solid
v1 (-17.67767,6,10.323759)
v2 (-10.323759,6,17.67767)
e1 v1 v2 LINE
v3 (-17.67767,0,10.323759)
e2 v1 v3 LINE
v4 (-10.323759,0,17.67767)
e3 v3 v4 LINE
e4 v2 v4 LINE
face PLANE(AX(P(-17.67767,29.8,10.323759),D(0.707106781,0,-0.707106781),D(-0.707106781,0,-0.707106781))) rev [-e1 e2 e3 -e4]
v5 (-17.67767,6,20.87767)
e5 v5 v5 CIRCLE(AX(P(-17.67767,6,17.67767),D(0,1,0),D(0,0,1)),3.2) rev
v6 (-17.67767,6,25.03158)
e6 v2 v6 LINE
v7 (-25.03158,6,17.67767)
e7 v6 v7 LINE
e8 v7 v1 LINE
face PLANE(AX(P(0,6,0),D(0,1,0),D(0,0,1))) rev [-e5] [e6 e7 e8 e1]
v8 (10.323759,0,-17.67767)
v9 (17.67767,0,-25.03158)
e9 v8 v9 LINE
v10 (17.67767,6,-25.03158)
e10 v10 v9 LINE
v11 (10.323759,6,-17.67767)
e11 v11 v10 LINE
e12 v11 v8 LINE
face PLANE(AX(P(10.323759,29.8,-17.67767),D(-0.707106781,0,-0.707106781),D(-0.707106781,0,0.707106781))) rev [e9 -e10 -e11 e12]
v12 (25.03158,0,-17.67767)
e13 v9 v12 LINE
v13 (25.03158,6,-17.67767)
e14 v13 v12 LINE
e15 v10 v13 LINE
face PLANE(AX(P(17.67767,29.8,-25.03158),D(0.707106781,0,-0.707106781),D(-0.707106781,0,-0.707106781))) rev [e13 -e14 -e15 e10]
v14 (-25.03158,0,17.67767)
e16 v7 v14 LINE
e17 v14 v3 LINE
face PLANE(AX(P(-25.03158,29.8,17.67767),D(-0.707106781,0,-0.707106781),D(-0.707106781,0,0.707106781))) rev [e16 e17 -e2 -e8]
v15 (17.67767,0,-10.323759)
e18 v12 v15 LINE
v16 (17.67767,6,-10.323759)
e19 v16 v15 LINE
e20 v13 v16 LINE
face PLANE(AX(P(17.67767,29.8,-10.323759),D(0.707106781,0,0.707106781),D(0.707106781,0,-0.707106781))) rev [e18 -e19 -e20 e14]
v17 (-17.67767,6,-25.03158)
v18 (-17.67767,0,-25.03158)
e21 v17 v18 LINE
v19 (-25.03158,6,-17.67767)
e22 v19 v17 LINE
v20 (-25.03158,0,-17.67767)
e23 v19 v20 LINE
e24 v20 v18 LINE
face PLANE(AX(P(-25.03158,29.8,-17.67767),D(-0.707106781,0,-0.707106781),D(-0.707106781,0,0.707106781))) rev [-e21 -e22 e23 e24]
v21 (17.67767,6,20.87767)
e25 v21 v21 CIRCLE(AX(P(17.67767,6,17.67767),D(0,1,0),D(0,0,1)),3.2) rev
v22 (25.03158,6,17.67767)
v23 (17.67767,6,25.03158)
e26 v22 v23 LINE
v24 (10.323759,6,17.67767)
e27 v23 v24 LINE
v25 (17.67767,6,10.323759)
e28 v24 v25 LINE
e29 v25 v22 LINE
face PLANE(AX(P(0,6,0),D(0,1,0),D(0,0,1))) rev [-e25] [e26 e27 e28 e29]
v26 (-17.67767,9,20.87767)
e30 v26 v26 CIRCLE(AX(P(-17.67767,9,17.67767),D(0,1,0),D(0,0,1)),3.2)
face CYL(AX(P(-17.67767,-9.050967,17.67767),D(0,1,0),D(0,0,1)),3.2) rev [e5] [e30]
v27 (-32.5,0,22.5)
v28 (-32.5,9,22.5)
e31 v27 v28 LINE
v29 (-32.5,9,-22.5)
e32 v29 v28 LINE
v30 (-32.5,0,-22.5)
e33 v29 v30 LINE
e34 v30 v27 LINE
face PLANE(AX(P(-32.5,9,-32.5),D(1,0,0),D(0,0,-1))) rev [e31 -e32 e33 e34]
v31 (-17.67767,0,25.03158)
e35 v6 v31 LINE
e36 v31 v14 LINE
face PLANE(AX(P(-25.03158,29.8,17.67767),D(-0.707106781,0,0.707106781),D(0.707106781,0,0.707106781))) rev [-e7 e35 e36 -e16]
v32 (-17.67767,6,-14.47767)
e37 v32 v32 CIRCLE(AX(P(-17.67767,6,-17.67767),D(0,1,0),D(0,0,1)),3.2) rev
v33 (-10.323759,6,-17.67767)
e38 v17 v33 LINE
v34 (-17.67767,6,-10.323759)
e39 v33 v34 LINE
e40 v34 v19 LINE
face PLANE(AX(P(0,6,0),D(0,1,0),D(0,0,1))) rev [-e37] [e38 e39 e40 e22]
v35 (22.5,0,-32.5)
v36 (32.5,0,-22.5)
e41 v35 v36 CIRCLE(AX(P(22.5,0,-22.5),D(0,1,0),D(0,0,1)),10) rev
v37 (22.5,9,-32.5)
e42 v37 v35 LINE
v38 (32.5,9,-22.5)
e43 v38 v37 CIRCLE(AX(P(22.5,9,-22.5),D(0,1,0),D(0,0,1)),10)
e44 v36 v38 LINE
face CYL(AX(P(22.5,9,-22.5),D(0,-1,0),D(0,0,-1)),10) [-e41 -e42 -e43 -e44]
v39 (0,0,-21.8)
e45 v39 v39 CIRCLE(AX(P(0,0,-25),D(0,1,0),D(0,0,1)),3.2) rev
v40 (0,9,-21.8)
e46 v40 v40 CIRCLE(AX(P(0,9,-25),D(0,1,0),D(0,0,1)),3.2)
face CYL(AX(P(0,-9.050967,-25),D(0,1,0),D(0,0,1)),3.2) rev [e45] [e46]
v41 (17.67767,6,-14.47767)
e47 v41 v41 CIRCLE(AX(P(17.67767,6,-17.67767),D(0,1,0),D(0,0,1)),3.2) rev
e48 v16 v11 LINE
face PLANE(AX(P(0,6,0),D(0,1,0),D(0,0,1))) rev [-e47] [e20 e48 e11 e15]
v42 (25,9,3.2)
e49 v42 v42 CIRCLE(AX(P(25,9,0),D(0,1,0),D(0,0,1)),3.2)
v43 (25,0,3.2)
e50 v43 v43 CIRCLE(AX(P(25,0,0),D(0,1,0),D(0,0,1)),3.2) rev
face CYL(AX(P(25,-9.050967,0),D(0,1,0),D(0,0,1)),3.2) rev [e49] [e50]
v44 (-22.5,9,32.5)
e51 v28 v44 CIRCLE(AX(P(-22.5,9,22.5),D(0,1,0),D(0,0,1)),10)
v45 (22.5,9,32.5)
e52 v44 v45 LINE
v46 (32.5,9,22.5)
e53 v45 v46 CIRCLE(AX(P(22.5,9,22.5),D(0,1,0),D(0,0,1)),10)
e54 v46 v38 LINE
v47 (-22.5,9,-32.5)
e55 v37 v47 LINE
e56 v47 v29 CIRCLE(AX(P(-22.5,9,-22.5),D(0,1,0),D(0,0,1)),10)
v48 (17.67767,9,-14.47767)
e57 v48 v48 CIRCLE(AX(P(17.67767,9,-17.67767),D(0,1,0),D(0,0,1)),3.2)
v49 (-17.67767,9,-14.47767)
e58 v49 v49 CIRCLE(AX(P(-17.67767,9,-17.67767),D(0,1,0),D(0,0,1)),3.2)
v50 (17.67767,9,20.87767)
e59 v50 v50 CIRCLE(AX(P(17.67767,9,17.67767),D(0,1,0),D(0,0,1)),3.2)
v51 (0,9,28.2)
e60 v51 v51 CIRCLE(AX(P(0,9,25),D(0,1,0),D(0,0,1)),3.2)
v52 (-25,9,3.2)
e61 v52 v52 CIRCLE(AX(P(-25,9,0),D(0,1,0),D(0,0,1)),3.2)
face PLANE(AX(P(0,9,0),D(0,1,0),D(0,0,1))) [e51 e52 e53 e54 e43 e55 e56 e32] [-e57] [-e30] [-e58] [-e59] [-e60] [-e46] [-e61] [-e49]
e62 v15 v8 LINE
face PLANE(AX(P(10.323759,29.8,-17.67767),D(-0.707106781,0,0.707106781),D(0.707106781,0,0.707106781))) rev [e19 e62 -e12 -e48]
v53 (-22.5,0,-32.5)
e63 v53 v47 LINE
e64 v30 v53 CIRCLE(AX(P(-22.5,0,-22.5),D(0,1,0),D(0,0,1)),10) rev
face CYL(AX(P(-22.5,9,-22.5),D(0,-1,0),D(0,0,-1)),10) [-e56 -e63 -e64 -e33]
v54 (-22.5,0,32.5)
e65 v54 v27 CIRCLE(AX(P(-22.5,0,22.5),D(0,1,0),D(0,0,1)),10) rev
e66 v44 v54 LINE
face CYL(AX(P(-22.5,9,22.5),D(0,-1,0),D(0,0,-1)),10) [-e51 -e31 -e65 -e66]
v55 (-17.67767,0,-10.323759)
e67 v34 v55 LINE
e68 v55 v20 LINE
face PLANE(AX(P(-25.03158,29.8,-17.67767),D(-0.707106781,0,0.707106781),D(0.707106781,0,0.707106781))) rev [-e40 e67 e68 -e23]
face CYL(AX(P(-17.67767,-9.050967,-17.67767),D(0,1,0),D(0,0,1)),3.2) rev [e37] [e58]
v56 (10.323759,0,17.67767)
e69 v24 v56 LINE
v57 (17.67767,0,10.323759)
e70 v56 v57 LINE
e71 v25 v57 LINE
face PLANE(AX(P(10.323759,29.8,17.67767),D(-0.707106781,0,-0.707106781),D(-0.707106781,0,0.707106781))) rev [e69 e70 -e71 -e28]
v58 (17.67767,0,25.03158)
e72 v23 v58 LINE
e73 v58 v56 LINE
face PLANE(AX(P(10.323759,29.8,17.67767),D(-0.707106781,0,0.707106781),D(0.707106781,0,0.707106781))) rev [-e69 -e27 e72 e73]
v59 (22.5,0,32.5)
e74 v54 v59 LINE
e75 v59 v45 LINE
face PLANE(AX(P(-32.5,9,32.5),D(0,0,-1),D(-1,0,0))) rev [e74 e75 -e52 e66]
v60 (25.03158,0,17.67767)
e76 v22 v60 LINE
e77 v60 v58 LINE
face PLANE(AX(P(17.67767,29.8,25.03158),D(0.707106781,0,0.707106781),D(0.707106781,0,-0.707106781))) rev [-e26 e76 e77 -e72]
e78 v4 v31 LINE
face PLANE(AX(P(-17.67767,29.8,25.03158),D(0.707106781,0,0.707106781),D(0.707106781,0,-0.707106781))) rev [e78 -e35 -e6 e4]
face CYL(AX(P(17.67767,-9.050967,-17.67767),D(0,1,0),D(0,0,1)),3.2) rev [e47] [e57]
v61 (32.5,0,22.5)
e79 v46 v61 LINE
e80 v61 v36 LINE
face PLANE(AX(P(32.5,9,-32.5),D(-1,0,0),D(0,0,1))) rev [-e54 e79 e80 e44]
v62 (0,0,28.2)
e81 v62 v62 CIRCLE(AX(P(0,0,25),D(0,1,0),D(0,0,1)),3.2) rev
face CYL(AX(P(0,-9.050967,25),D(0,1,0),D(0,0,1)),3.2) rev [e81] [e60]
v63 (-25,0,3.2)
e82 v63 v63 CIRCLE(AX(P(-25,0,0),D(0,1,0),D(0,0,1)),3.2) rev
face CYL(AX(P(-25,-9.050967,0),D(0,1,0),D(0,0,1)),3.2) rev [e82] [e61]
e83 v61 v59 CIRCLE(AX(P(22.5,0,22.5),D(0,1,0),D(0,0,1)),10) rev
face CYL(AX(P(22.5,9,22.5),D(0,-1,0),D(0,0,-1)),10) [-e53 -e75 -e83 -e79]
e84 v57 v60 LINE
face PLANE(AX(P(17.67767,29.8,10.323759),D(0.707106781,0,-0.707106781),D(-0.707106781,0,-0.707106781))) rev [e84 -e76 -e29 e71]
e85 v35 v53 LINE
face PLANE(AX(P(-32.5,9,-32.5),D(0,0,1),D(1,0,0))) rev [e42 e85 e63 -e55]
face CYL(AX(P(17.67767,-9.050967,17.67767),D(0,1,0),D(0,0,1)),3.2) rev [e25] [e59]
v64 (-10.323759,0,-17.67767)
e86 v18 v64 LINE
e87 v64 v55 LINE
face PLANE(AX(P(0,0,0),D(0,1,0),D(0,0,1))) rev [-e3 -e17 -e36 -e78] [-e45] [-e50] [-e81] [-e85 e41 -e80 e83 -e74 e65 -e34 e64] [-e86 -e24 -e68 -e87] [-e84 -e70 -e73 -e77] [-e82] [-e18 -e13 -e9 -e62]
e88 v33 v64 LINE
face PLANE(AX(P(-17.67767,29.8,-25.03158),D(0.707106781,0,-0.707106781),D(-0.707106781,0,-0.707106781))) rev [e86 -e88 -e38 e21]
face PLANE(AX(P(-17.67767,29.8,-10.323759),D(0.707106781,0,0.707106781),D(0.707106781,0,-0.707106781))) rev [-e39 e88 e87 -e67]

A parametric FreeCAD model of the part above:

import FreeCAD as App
import Part
import Sketcher
Q = App.Units.Quantity


def edges_at(feature, points):
    """Names of the edges that pass closest to the given points."""
    edges = feature.Shape.Edges
    near = lambda p: min(range(len(edges)), key=lambda i: edges[i].distToShape(Part.Vertex(*p))[0])
    return sorted({f"Edge{near(p) + 1}" for p in points})

doc = App.newDocument("Part")
body = doc.addObject("PartDesign::Body", "Body")

# Sketch on XZ plane
sketch1 = body.newObject("Sketcher::SketchObject", "Sketch")
sketch1.AttachmentSupport = (doc.getObject("XZ_Plane"), [""])
sketch1.MapMode = "FlatFace"
sketch1.addGeometry(Part.LineSegment(App.Vector(-32.5, -32.5, 0), App.Vector(-32.5, 32.5, 0)), False)
sketch1.addGeometry(Part.LineSegment(App.Vector(-32.5, 32.5, 0), App.Vector(32.5, 32.5, 0)), False)
sketch1.addGeometry(Part.LineSegment(App.Vector(32.5, 32.5, 0), App.Vector(32.5, -32.5, 0)), False)
sketch1.addGeometry(Part.LineSegment(App.Vector(32.5, -32.5, 0), App.Vector(-32.5, -32.5, 0)), False)
sketch1.addConstraint(Sketcher.Constraint("Coincident", 0, 2, 1, 1))
sketch1.addConstraint(Sketcher.Constraint("Coincident", 1, 2, 2, 1))
sketch1.addConstraint(Sketcher.Constraint("Coincident", 2, 2, 3, 1))
sketch1.addConstraint(Sketcher.Constraint("Coincident", 3, 2, 0, 1))
sketch1.addConstraint(Sketcher.Constraint("Vertical", 0))
sketch1.addConstraint(Sketcher.Constraint("Horizontal", 1))
sketch1.addConstraint(Sketcher.Constraint("Vertical", 2))
sketch1.addConstraint(Sketcher.Constraint("Horizontal", 3))
sketch1.addConstraint(Sketcher.Constraint("Symmetric", 0, 2, 2, 2, -1, 1))
sketch1.addConstraint(Sketcher.Constraint("Equal", 3, 0))
sketch1.addConstraint(Sketcher.Constraint("DistanceX", 1, 1, 1, 2, Q("65 mm")))
pad1 = body.newObject("PartDesign::Pad", "Pad")
pad1.Profile = sketch1
pad1.Length = 9
pad1.Reversed = True

# Sketch on XZ plane
sketch2 = body.newObject("Sketcher::SketchObject", "Sketch001")
sketch2.AttachmentSupport = (doc.getObject("XZ_Plane"), [""])
sketch2.MapMode = "FlatFace"
sketch2.AttachmentOffset = App.Placement(App.Vector(0, 0, -9), App.Rotation())
sketch2.addGeometry(Part.Circle(App.Vector(-17.67767, -17.67767, 0), App.Vector(0, 0, 1), 3.2), False)
sketch2.addGeometry(Part.Circle(App.Vector(17.67767, 17.67767, 0), App.Vector(0, 0, 1), 3.2), False)
sketch2.addGeometry(Part.Circle(App.Vector(-17.67767, 17.67767, 0), App.Vector(0, 0, 1), 3.2), False)
sketch2.addGeometry(Part.Circle(App.Vector(17.67767, -17.67767, 0), App.Vector(0, 0, 1), 3.2), False)
sketch2.addGeometry(Part.Circle(App.Vector(0, -25, 0), App.Vector(0, 0, 1), 3.2), False)
sketch2.addGeometry(Part.Circle(App.Vector(25, 0, 0), App.Vector(0, 0, 1), 3.2), False)
sketch2.addGeometry(Part.Circle(App.Vector(0, 25, 0), App.Vector(0, 0, 1), 3.2), False)
sketch2.addGeometry(Part.Circle(App.Vector(-25, 0, 0), App.Vector(0, 0, 1), 3.2), False)
sketch2.addConstraint(Sketcher.Constraint("Equal", 0, 1))
sketch2.addConstraint(Sketcher.Constraint("Equal", 1, 2))
sketch2.addConstraint(Sketcher.Constraint("Equal", 2, 3))
sketch2.addConstraint(Sketcher.Constraint("Equal", 3, 4))
sketch2.addConstraint(Sketcher.Constraint("Equal", 4, 5))
sketch2.addConstraint(Sketcher.Constraint("Equal", 5, 6))
sketch2.addConstraint(Sketcher.Constraint("Equal", 6, 7))
sketch2.addConstraint(Sketcher.Constraint("Symmetric", 0, 3, 1, 3, -1, 1))
sketch2.addConstraint(Sketcher.Constraint("Symmetric", 2, 3, 3, 3, -1, 1))
sketch2.addConstraint(Sketcher.Constraint("Symmetric", 4, 3, 6, 3, -1, 1))
sketch2.addConstraint(Sketcher.Constraint("Symmetric", 5, 3, 7, 3, -1, 1))
sketch2.addConstraint(Sketcher.Constraint("Symmetric", 1, 3, 2, 3, -2))
sketch2.addConstraint(Sketcher.Constraint("PointOnObject", 4, 3, -2))
sketch2.addConstraint(Sketcher.Constraint("PointOnObject", 5, 3, -1))
sketch2.addConstraint(Sketcher.Constraint("Diameter", 0, Q("6.4 mm")))
sketch2.addConstraint(Sketcher.Constraint("DistanceY", 4, 3, -1, 1, Q("25 mm")))
sketch2.addConstraint(Sketcher.Constraint("DistanceX", -1, 1, 5, 3, Q("25 mm")))
sketch2.addConstraint(Sketcher.Constraint("DistanceX", 0, 3, -1, 1, Q("17.67767 mm")))
sketch2.addConstraint(Sketcher.Constraint("DistanceY", 0, 3, -1, 1, Q("17.67767 mm")))
pocket1 = body.newObject("PartDesign::Pocket", "Pocket")
pocket1.Profile = sketch2
pocket1.Length = 9
pocket1.Reversed = True

# Sketch on XZ plane
sketch3 = body.newObject("Sketcher::SketchObject", "Sketch002")
sketch3.AttachmentSupport = (doc.getObject("XZ_Plane"), [""])
sketch3.MapMode = "FlatFace"
sketch3.addGeometry(Part.LineSegment(App.Vector(-25.03158, 17.67767, 0), App.Vector(-17.67767, 10.323759, 0)), False)
sketch3.addGeometry(Part.LineSegment(App.Vector(-17.67767, 10.323759, 0), App.Vector(-10.323759, 17.67767, 0)), False)
sketch3.addGeometry(Part.LineSegment(App.Vector(-10.323759, 17.67767, 0), App.Vector(-17.67767, 25.03158, 0)), False)
sketch3.addGeometry(Part.LineSegment(App.Vector(-17.67767, 25.03158, 0), App.Vector(-25.03158, 17.67767, 0)), False)
sketch3.addGeometry(Part.LineSegment(App.Vector(10.323759, 17.67767, 0), App.Vector(17.67767, 10.323759, 0)), False)
sketch3.addGeometry(Part.LineSegment(App.Vector(17.67767, 10.323759, 0), App.Vector(25.03158, 17.67767, 0)), False)
sketch3.addGeometry(Part.LineSegment(App.Vector(25.03158, 17.67767, 0), App.Vector(17.67767, 25.03158, 0)), False)
sketch3.addGeometry(Part.LineSegment(App.Vector(17.67767, 25.03158, 0), App.Vector(10.323759, 17.67767, 0)), False)
sketch3.addGeometry(Part.LineSegment(App.Vector(10.323759, -17.67767, 0), App.Vector(17.67767, -25.03158, 0)), False)
sketch3.addGeometry(Part.LineSegment(App.Vector(17.67767, -25.03158, 0), App.Vector(25.03158, -17.67767, 0)), False)
sketch3.addGeometry(Part.LineSegment(App.Vector(25.03158, -17.67767, 0), App.Vector(17.67767, -10.323759, 0)), False)
sketch3.addGeometry(Part.LineSegment(App.Vector(17.67767, -10.323759, 0), App.Vector(10.323759, -17.67767, 0)), False)
sketch3.addGeometry(Part.LineSegment(App.Vector(-25.03158, -17.67767, 0), App.Vector(-17.67767, -25.03158, 0)), False)
sketch3.addGeometry(Part.LineSegment(App.Vector(-17.67767, -25.03158, 0), App.Vector(-10.323759, -17.67767, 0)), False)
sketch3.addGeometry(Part.LineSegment(App.Vector(-10.323759, -17.67767, 0), App.Vector(-17.67767, -10.323759, 0)), False)
sketch3.addGeometry(Part.LineSegment(App.Vector(-17.67767, -10.323759, 0), App.Vector(-25.03158, -17.67767, 0)), False)
sketch3.addConstraint(Sketcher.Constraint("Coincident", 0, 2, 1, 1))
sketch3.addConstraint(Sketcher.Constraint("Coincident", 1, 2, 2, 1))
sketch3.addConstraint(Sketcher.Constraint("Coincident", 2, 2, 3, 1))
sketch3.addConstraint(Sketcher.Constraint("Coincident", 3, 2, 0, 1))
sketch3.addConstraint(Sketcher.Constraint("Coincident", 4, 2, 5, 1))
sketch3.addConstraint(Sketcher.Constraint("Coincident", 5, 2, 6, 1))
sketch3.addConstraint(Sketcher.Constraint("Coincident", 6, 2, 7, 1))
sketch3.addConstraint(Sketcher.Constraint("Coincident", 7, 2, 4, 1))
sketch3.addConstraint(Sketcher.Constraint("Coincident", 8, 2, 9, 1))
sketch3.addConstraint(Sketcher.Constraint("Coincident", 9, 2, 10, 1))
sketch3.addConstraint(Sketcher.Constraint("Coincident", 10, 2, 11, 1))
sketch3.addConstraint(Sketcher.Constraint("Coincident", 11, 2, 8, 1))
sketch3.addConstraint(Sketcher.Constraint("Coincident", 12, 2, 13, 1))
sketch3.addConstraint(Sketcher.Constraint("Coincident", 13, 2, 14, 1))
sketch3.addConstraint(Sketcher.Constraint("Coincident", 14, 2, 15, 1))
sketch3.addConstraint(Sketcher.Constraint("Coincident", 15, 2, 12, 1))
sketch3.addConstraint(Sketcher.Constraint("Symmetric", 2, 2, 8, 2, -1, 1))
sketch3.addConstraint(Sketcher.Constraint("Symmetric", 3, 2, 9, 2, -1, 1))
sketch3.addConstraint(Sketcher.Constraint("Symmetric", 0, 2, 10, 2, -1, 1))
sketch3.addConstraint(Sketcher.Constraint("Symmetric", 1, 2, 11, 2, -1, 1))
sketch3.addConstraint(Sketcher.Constraint("Symmetric", 6, 2, 12, 2, -1, 1))
sketch3.addConstraint(Sketcher.Constraint("Symmetric", 7, 2, 13, 2, -1, 1))
sketch3.addConstraint(Sketcher.Constraint("Symmetric", 4, 2, 14, 2, -1, 1))
sketch3.addConstraint(Sketcher.Constraint("Symmetric", 5, 2, 15, 2, -1, 1))
sketch3.addConstraint(Sketcher.Constraint("Symmetric", 0, 2, 4, 2, -2))
sketch3.addConstraint(Sketcher.Constraint("Symmetric", 3, 2, 5, 2, -2))
sketch3.addConstraint(Sketcher.Constraint("Symmetric", 2, 2, 6, 2, -2))
sketch3.addConstraint(Sketcher.Constraint("Symmetric", 1, 2, 7, 2, -2))
sketch3.addConstraint(Sketcher.Constraint("Perpendicular", 0, 1))
sketch3.addConstraint(Sketcher.Constraint("Perpendicular", 1, 2))
sketch3.addConstraint(Sketcher.Constraint("Perpendicular", 2, 3))
sketch3.addConstraint(Sketcher.Constraint("Perpendicular", 3, 4))
sketch3.addConstraint(Sketcher.Constraint("Horizontal", 1, 2, 3, 2))
sketch3.addConstraint(Sketcher.Constraint("Distance", 0, Q("10.4 mm")))
sketch3.addConstraint(Sketcher.Constraint("DistanceX", 0, 2, -1, 1, Q("17.67767 mm")))
sketch3.addConstraint(Sketcher.Constraint("DistanceY", -1, 1, 0, 2, Q("10.323759 mm")))
pocket2 = body.newObject("PartDesign::Pocket", "Pocket001")
pocket2.Profile = sketch3
pocket2.Length = 6
doc.recompute()

fillet = body.newObject("PartDesign::Fillet", "Fillet")
fillet.Base = (pocket2, edges_at(pocket2, [
    (-32.5, 4.5, -32.5),
    (32.5, 4.5, -32.5),
    (32.5, 4.5, 32.5),
    (-32.5, 4.5, 32.5),
]))
fillet.Radius = 10

doc.recompute()
